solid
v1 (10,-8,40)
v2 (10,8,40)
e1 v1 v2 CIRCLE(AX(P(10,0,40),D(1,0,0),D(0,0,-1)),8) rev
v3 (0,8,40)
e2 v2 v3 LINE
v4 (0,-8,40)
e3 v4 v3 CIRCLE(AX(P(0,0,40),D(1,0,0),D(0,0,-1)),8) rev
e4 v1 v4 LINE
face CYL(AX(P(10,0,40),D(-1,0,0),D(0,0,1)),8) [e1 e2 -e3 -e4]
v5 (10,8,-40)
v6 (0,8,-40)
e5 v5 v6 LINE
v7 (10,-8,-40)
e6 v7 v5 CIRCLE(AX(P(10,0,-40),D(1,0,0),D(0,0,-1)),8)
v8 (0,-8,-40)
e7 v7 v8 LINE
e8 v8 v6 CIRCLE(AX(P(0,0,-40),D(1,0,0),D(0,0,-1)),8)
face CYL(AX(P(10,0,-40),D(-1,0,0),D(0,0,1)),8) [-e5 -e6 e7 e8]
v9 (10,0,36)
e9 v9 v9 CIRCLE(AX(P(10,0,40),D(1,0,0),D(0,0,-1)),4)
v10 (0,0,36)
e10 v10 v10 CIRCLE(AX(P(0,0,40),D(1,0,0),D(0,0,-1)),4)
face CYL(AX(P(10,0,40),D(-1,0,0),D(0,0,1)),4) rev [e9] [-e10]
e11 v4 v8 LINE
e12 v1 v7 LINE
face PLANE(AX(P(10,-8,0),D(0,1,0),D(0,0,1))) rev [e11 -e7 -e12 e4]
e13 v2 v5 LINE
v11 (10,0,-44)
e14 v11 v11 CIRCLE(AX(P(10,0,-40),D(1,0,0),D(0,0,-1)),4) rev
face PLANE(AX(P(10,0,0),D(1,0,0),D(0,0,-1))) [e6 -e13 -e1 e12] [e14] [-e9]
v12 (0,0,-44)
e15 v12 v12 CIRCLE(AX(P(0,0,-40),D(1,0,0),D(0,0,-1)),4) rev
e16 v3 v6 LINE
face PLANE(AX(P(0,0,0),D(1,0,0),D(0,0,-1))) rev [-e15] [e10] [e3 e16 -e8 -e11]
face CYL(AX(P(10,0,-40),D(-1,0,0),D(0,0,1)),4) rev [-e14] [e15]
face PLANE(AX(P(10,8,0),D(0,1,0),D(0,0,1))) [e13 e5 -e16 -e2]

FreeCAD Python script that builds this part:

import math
import FreeCAD as App
import Part
import Sketcher
from FreeCAD import Vector

doc = App.newDocument("Part")
body = doc.addObject("PartDesign::Body", "Body")

sketch1 = body.newObject("Sketcher::SketchObject", "Sketch")
sketch1.AttachmentSupport = (doc.getObject("YZ_Plane"), [""])
sketch1.MapMode = "FlatFace"
sketch1.addGeometry([
    Part.LineSegment(Vector(8, -40, 0), Vector(8, 40, 0)),
    Part.ArcOfCircle(Part.Circle(Vector(0, 40, 0), Vector(0, 0, 1), 8), math.radians(0), math.radians(180)),
    Part.LineSegment(Vector(-8, 40, 0), Vector(-8, -40, 0)),
    Part.ArcOfCircle(Part.Circle(Vector(0, -40, 0), Vector(0, 0, 1), 8), math.radians(180), math.radians(360)),
    Part.Circle(Vector(0, -40, 0), Vector(0, 0, 1), 4),
    Part.Circle(Vector(0, 40, 0), Vector(0, 0, 1), 4),
], False)
sketch1.addConstraint([
    Sketcher.Constraint("Tangent", 0, 2, 1, 1),
    Sketcher.Constraint("Tangent", 1, 2, 2, 1),
    Sketcher.Constraint("Tangent", 2, 2, 3, 1),
    Sketcher.Constraint("Tangent", 3, 2, 0, 1),
    Sketcher.Constraint("Vertical", 0),
    Sketcher.Constraint("Vertical", 2),
    Sketcher.Constraint("Coincident", 4, 3, 3, 3),
    Sketcher.Constraint("Coincident", 5, 3, 1, 3),
    Sketcher.Constraint("Equal", 4, 5),
    Sketcher.Constraint("Symmetric", 1, 3, 3, 3, -1, 1),
    Sketcher.Constraint("Diameter", 4, 8.0),
    Sketcher.Constraint("Radius", 1, 8.0),
    Sketcher.Constraint("DistanceY", 0, 1, 0, 2, 80.0),
])
pad1 = body.newObject("PartDesign::Pad", "Pad")
pad1.Profile = sketch1
pad1.Length = 10

doc.recompute()
